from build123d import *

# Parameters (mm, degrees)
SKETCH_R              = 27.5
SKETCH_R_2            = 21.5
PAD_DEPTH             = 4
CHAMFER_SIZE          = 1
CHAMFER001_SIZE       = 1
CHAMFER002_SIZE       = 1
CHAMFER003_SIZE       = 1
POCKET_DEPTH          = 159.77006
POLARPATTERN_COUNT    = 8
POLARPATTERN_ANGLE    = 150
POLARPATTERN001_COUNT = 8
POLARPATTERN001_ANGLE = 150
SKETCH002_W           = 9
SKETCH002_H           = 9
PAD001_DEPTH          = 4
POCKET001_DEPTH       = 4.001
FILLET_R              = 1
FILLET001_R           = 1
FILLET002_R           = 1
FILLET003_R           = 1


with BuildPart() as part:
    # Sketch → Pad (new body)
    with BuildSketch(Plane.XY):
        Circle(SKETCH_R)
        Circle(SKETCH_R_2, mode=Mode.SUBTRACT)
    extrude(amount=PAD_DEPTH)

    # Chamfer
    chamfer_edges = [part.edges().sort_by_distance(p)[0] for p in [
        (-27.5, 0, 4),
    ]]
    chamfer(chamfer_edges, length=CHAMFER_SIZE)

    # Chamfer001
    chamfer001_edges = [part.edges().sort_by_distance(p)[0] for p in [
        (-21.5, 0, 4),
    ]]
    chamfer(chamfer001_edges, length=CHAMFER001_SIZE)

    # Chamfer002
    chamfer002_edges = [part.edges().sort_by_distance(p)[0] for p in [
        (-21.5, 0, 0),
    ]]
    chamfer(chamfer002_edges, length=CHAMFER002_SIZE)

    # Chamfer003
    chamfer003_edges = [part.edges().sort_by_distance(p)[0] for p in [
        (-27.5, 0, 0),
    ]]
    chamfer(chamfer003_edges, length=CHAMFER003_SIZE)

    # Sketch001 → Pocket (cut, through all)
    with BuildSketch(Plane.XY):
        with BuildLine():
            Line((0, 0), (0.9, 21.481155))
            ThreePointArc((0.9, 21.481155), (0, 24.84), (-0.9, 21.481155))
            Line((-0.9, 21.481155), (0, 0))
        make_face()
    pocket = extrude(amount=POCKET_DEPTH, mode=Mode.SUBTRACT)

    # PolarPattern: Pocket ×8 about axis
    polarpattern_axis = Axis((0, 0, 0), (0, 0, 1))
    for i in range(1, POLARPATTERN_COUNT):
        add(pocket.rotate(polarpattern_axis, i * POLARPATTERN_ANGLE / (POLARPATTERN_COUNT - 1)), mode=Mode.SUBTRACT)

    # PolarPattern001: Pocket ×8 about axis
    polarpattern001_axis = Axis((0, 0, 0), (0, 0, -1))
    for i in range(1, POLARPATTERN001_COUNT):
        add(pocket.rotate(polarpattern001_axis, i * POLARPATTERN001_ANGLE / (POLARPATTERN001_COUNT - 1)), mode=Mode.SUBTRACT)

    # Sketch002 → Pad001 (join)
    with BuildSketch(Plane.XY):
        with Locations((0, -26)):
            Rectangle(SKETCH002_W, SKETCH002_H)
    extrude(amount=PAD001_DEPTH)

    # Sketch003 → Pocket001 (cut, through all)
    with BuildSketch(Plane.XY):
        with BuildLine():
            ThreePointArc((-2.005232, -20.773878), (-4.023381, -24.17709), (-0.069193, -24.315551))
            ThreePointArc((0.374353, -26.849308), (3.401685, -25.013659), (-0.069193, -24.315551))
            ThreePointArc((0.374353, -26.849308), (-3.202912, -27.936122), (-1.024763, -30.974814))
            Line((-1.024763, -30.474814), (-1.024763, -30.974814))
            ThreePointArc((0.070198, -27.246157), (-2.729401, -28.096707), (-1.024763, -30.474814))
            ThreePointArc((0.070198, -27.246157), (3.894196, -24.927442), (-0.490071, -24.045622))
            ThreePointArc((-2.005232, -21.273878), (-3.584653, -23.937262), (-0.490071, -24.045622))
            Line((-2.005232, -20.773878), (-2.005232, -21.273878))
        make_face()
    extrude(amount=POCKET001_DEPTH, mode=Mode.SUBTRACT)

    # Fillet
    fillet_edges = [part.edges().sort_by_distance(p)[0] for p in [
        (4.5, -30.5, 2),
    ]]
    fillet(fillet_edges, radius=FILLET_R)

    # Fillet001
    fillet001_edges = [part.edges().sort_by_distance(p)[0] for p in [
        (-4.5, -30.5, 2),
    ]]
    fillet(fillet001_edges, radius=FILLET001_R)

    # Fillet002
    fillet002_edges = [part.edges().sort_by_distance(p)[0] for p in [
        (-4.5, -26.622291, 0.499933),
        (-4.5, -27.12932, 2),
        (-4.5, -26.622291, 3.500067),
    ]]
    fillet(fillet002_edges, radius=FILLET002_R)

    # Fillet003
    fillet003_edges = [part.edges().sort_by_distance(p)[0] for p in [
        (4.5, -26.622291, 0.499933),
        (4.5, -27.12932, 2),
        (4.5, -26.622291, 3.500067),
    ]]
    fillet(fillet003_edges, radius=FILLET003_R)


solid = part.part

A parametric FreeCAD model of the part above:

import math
import FreeCAD as App
import Part
import Sketcher

V = App.Vector
Q = App.Units.Quantity


def edges_at(feature, points):
    """Names of the edges that pass closest to the given points."""
    edges = feature.Shape.Edges
    near = lambda p: min(range(len(edges)), key=lambda i: edges[i].distToShape(Part.Vertex(*p))[0])
    return sorted({f"Edge{near(p) + 1}" for p in points})

doc = App.newDocument("Part")
body = doc.addObject("PartDesign::Body", "Body")

# Sketch on XY plane
sketch1 = body.newObject("Sketcher::SketchObject", "Sketch")
sketch1.AttachmentSupport = (doc.getObject("XY_Plane"), [""])
sketch1.MapMode = "FlatFace"
sketch1.addGeometry([
    Part.Circle(V(0, 0, 0), V(0, 0, 1), 28),
    Part.Circle(V(0, 0, 0), V(0, 0, 1), 22),
], False)
sketch1.addConstraint([
    Sketcher.Constraint("Coincident", 0, 3, -1, 1),
    Sketcher.Constraint("Coincident", 1, 3, -1, 1),
    Sketcher.Constraint("Diameter", 0, Q("55 mm")),
    Sketcher.Constraint("Diameter", 1, Q("43 mm")),
])
pad1 = body.newObject("PartDesign::Pad", "Pad")
pad1.Profile = sketch1
pad1.Length = 4
doc.recompute()

chamfer = body.newObject("PartDesign::Chamfer", "Chamfer")
chamfer.Base = (pad1, edges_at(pad1, [(-27.5, 0, 4)]))
chamfer.Size = 1
doc.recompute()

chamfer2 = body.newObject("PartDesign::Chamfer", "Chamfer001")
chamfer2.Base = (chamfer, edges_at(chamfer, [(-21.5, 0, 4)]))
chamfer2.Size = 1
doc.recompute()

chamfer3 = body.newObject("PartDesign::Chamfer", "Chamfer002")
chamfer3.Base = (chamfer2, edges_at(chamfer2, [(-21.5, 0, 0)]))
chamfer3.Size = 1
doc.recompute()

chamfer4 = body.newObject("PartDesign::Chamfer", "Chamfer003")
chamfer4.Base = (chamfer3, edges_at(chamfer3, [(-27.5, 0, 0)]))
chamfer4.Size = 1

# Sketch on XY plane
sketch2 = body.newObject("Sketcher::SketchObject", "Sketch001")
sketch2.AttachmentSupport = (doc.getObject("XY_Plane"), [""])
sketch2.MapMode = "FlatFace"
sketch2.addGeometry([
    Part.LineSegment(V(0, 0, 0), V(0.9, 21.5, 0)),
    Part.ArcOfCircle(Part.Circle(V(0, 23, 0), V(0, 0, 1), 1.8), math.radians(-60), math.radians(240)),
    Part.LineSegment(V(-0.9, 21.5, 0), V(0, 0, 0)),
], False)
sketch2.addConstraint([
    Sketcher.Constraint("Coincident", 0, 2, 1, 1),
    Sketcher.Constraint("Coincident", 1, 2, 2, 1),
    Sketcher.Constraint("Coincident", 2, 2, 0, 1),
    Sketcher.Constraint("Coincident", 2, 2, -1, 1),
    Sketcher.Constraint("Symmetric", 0, 2, 1, 2, -2),
    Sketcher.Constraint("Radius", 1, Q("1.8 mm")),
    Sketcher.Constraint("Distance", 0, Q("21.5 mm")),
    Sketcher.Constraint("DistanceX", -1, 1, 0, 2, Q("0.9 mm")),
])
pocket1 = body.newObject("PartDesign::Pocket", "Pocket")
pocket1.Profile = sketch2
pocket1.Type = "ThroughAll"
pocket1.Reversed = True
doc.recompute()

polarpattern = body.newObject("PartDesign::PolarPattern", "PolarPattern")
polarpattern.Originals = [pocket1]
polarpattern.Axis = (doc.getObject("Z_Axis"), [""])
polarpattern.Angle = 150
polarpattern.Occurrences = 8
body.Tip = polarpattern
doc.recompute()

polarpattern2 = body.newObject("PartDesign::PolarPattern", "PolarPattern001")
polarpattern2.Originals = [pocket1]
polarpattern2.Axis = (doc.getObject("Z_Axis"), [""])
polarpattern2.Angle = 150
polarpattern2.Occurrences = 8
polarpattern2.Reversed = True
body.Tip = polarpattern2

# Sketch on XY plane
sketch3 = body.newObject("Sketcher::SketchObject", "Sketch002")
sketch3.AttachmentSupport = (doc.getObject("XY_Plane"), [""])
sketch3.MapMode = "FlatFace"
sketch3.addGeometry([
    Part.LineSegment(V(-4, -22, 0), V(-4, -30, 0)),
    Part.LineSegment(V(-4, -30, 0), V(4, -30, 0)),
    Part.LineSegment(V(4, -30, 0), V(4, -22, 0)),
    Part.LineSegment(V(4, -22, 0), V(-4, -22, 0)),
], False)
sketch3.addConstraint([
    Sketcher.Constraint("Coincident", 0, 2, 1, 1),
    Sketcher.Constraint("Coincident", 1, 2, 2, 1),
    Sketcher.Constraint("Coincident", 2, 2, 3, 1),
    Sketcher.Constraint("Coincident", 3, 2, 0, 1),
    Sketcher.Constraint("Vertical", 0),
    Sketcher.Constraint("Horizontal", 1),
    Sketcher.Constraint("Vertical", 2),
    Sketcher.Constraint("Horizontal", 3),
    Sketcher.Constraint("Equal", 3, 0),
    Sketcher.Constraint("DistanceX", 1, 1, 1, 2, Q("9 mm")),
    Sketcher.Constraint("DistanceX", 0, 2, -1, 1, Q("4.5 mm")),
    Sketcher.Constraint("DistanceY", 0, 2, -1, 1, Q("30.5 mm")),
])
pad2 = body.newObject("PartDesign::Pad", "Pad001")
pad2.Profile = sketch3
pad2.Length = 4

# Sketch on XY plane
sketch4 = body.newObject("Sketcher::SketchObject", "Sketch003")
sketch4.AttachmentSupport = (doc.getObject("XY_Plane"), [""])
sketch4.MapMode = "FlatFace"
sketch4.addGeometry([
    Part.ArcOfCircle(Part.Circle(V(-2, -23.1, 0), V(0, 0, 1), 2.3), math.radians(90), math.radians(327)),  # 0
    Part.ArcOfCircle(Part.Circle(V(1.5, -25.3, 0), V(0, 0, 1), 1.9), math.radians(-127), math.radians(147)),  # 1
    Part.ArcOfCircle(Part.Circle(V(-1, -28.7, 0), V(0, 0, 1), 2.3), math.radians(53), math.radians(270)),  # 2
    Part.LineSegment(V(-1, -31, 0), V(-1, -30.5, 0)),  # 3
    Part.ArcOfCircle(Part.Circle(V(-1, -28.7, 0), V(0, 0, 1), 1.8), math.radians(53), math.radians(270)),  # 4
    Part.ArcOfCircle(Part.Circle(V(1.5, -25.3, 0), V(0, 0, 1), 2.4), math.radians(-127), math.radians(147)),  # 5
    Part.ArcOfCircle(Part.Circle(V(-2, -23.1, 0), V(0, 0, 1), 1.8), math.radians(90), math.radians(327)),  # 6
    Part.LineSegment(V(-2, -21.3, 0), V(-2, -20.8, 0)),  # 7
], False)
sketch4.addConstraint([
    Sketcher.Constraint("Tangent", 0, 2, 1, 2),
    Sketcher.Constraint("Tangent", 1, 1, 2, 1),
    Sketcher.Constraint("Coincident", 2, 2, 3, 1),
    Sketcher.Constraint("Coincident", 3, 2, 4, 2),
    Sketcher.Constraint("Tangent", 4, 1, 5, 1),
    Sketcher.Constraint("Tangent", 5, 2, 6, 2),
    Sketcher.Constraint("Coincident", 6, 1, 7, 1),
    Sketcher.Constraint("Coincident", 7, 2, 0, 1),
    Sketcher.Constraint("Vertical", 3),
    Sketcher.Constraint("Vertical", 7),
    Sketcher.Constraint("Coincident", 4, 3, 2, 3),
    Sketcher.Constraint("Coincident", 5, 3, 1, 3),
    Sketcher.Constraint("Coincident", 6, 3, 0, 3),
    Sketcher.Constraint("Equal", 0, 2),
    Sketcher.Constraint("Vertical", 4, 3, 2, 2),
    Sketcher.Constraint("Vertical", 0, 3, 6, 1),
    Sketcher.Constraint("Radius", 0, Q("2.3 mm")),
    Sketcher.Constraint("Radius", 1, Q("1.9 mm")),
    Sketcher.Constraint("Radius", 4, Q("1.8 mm")),
    Sketcher.Constraint("DistanceX", -1, 1, 4, 1, Q("0.070198 mm")),
    Sketcher.Constraint("DistanceY", 5, 3, 0, 3, Q("2.267402 mm")),
    Sketcher.Constraint("DistanceY", 0, 3, -1, 1, Q("23.073878 mm")),
    Sketcher.Constraint("DistanceY", 1, 1, -1, 1, Q("26.849308 mm")),
])
pocket2 = body.newObject("PartDesign::Pocket", "Pocket001")
pocket2.Profile = sketch4
pocket2.Type = "ThroughAll"
pocket2.Reversed = True
doc.recompute()

fillet = body.newObject("PartDesign::Fillet", "Fillet")
fillet.Base = (pocket2, edges_at(pocket2, [(4.5, -30.5, 2)]))
fillet.Radius = 1
doc.recompute()

fillet2 = body.newObject("PartDesign::Fillet", "Fillet001")
fillet2.Base = (fillet, edges_at(fillet, [(-4.5, -30.5, 2)]))
fillet2.Radius = 1
doc.recompute()

fillet3 = body.newObject("PartDesign::Fillet", "Fillet002")
fillet3.Base = (fillet2, edges_at(fillet2, [(-4.5, -26.622, 0.5), (-4.5, -27.129, 2), (-4.5, -26.622, 3.5)]))
fillet3.Radius = 1
doc.recompute()

fillet4 = body.newObject("PartDesign::Fillet", "Fillet003")
fillet4.Base = (fillet3, edges_at(fillet3, [(4.5, -26.622, 0.5), (4.5, -27.129, 2), (4.5, -26.622, 3.5)]))
fillet4.Radius = 1

doc.recompute()
